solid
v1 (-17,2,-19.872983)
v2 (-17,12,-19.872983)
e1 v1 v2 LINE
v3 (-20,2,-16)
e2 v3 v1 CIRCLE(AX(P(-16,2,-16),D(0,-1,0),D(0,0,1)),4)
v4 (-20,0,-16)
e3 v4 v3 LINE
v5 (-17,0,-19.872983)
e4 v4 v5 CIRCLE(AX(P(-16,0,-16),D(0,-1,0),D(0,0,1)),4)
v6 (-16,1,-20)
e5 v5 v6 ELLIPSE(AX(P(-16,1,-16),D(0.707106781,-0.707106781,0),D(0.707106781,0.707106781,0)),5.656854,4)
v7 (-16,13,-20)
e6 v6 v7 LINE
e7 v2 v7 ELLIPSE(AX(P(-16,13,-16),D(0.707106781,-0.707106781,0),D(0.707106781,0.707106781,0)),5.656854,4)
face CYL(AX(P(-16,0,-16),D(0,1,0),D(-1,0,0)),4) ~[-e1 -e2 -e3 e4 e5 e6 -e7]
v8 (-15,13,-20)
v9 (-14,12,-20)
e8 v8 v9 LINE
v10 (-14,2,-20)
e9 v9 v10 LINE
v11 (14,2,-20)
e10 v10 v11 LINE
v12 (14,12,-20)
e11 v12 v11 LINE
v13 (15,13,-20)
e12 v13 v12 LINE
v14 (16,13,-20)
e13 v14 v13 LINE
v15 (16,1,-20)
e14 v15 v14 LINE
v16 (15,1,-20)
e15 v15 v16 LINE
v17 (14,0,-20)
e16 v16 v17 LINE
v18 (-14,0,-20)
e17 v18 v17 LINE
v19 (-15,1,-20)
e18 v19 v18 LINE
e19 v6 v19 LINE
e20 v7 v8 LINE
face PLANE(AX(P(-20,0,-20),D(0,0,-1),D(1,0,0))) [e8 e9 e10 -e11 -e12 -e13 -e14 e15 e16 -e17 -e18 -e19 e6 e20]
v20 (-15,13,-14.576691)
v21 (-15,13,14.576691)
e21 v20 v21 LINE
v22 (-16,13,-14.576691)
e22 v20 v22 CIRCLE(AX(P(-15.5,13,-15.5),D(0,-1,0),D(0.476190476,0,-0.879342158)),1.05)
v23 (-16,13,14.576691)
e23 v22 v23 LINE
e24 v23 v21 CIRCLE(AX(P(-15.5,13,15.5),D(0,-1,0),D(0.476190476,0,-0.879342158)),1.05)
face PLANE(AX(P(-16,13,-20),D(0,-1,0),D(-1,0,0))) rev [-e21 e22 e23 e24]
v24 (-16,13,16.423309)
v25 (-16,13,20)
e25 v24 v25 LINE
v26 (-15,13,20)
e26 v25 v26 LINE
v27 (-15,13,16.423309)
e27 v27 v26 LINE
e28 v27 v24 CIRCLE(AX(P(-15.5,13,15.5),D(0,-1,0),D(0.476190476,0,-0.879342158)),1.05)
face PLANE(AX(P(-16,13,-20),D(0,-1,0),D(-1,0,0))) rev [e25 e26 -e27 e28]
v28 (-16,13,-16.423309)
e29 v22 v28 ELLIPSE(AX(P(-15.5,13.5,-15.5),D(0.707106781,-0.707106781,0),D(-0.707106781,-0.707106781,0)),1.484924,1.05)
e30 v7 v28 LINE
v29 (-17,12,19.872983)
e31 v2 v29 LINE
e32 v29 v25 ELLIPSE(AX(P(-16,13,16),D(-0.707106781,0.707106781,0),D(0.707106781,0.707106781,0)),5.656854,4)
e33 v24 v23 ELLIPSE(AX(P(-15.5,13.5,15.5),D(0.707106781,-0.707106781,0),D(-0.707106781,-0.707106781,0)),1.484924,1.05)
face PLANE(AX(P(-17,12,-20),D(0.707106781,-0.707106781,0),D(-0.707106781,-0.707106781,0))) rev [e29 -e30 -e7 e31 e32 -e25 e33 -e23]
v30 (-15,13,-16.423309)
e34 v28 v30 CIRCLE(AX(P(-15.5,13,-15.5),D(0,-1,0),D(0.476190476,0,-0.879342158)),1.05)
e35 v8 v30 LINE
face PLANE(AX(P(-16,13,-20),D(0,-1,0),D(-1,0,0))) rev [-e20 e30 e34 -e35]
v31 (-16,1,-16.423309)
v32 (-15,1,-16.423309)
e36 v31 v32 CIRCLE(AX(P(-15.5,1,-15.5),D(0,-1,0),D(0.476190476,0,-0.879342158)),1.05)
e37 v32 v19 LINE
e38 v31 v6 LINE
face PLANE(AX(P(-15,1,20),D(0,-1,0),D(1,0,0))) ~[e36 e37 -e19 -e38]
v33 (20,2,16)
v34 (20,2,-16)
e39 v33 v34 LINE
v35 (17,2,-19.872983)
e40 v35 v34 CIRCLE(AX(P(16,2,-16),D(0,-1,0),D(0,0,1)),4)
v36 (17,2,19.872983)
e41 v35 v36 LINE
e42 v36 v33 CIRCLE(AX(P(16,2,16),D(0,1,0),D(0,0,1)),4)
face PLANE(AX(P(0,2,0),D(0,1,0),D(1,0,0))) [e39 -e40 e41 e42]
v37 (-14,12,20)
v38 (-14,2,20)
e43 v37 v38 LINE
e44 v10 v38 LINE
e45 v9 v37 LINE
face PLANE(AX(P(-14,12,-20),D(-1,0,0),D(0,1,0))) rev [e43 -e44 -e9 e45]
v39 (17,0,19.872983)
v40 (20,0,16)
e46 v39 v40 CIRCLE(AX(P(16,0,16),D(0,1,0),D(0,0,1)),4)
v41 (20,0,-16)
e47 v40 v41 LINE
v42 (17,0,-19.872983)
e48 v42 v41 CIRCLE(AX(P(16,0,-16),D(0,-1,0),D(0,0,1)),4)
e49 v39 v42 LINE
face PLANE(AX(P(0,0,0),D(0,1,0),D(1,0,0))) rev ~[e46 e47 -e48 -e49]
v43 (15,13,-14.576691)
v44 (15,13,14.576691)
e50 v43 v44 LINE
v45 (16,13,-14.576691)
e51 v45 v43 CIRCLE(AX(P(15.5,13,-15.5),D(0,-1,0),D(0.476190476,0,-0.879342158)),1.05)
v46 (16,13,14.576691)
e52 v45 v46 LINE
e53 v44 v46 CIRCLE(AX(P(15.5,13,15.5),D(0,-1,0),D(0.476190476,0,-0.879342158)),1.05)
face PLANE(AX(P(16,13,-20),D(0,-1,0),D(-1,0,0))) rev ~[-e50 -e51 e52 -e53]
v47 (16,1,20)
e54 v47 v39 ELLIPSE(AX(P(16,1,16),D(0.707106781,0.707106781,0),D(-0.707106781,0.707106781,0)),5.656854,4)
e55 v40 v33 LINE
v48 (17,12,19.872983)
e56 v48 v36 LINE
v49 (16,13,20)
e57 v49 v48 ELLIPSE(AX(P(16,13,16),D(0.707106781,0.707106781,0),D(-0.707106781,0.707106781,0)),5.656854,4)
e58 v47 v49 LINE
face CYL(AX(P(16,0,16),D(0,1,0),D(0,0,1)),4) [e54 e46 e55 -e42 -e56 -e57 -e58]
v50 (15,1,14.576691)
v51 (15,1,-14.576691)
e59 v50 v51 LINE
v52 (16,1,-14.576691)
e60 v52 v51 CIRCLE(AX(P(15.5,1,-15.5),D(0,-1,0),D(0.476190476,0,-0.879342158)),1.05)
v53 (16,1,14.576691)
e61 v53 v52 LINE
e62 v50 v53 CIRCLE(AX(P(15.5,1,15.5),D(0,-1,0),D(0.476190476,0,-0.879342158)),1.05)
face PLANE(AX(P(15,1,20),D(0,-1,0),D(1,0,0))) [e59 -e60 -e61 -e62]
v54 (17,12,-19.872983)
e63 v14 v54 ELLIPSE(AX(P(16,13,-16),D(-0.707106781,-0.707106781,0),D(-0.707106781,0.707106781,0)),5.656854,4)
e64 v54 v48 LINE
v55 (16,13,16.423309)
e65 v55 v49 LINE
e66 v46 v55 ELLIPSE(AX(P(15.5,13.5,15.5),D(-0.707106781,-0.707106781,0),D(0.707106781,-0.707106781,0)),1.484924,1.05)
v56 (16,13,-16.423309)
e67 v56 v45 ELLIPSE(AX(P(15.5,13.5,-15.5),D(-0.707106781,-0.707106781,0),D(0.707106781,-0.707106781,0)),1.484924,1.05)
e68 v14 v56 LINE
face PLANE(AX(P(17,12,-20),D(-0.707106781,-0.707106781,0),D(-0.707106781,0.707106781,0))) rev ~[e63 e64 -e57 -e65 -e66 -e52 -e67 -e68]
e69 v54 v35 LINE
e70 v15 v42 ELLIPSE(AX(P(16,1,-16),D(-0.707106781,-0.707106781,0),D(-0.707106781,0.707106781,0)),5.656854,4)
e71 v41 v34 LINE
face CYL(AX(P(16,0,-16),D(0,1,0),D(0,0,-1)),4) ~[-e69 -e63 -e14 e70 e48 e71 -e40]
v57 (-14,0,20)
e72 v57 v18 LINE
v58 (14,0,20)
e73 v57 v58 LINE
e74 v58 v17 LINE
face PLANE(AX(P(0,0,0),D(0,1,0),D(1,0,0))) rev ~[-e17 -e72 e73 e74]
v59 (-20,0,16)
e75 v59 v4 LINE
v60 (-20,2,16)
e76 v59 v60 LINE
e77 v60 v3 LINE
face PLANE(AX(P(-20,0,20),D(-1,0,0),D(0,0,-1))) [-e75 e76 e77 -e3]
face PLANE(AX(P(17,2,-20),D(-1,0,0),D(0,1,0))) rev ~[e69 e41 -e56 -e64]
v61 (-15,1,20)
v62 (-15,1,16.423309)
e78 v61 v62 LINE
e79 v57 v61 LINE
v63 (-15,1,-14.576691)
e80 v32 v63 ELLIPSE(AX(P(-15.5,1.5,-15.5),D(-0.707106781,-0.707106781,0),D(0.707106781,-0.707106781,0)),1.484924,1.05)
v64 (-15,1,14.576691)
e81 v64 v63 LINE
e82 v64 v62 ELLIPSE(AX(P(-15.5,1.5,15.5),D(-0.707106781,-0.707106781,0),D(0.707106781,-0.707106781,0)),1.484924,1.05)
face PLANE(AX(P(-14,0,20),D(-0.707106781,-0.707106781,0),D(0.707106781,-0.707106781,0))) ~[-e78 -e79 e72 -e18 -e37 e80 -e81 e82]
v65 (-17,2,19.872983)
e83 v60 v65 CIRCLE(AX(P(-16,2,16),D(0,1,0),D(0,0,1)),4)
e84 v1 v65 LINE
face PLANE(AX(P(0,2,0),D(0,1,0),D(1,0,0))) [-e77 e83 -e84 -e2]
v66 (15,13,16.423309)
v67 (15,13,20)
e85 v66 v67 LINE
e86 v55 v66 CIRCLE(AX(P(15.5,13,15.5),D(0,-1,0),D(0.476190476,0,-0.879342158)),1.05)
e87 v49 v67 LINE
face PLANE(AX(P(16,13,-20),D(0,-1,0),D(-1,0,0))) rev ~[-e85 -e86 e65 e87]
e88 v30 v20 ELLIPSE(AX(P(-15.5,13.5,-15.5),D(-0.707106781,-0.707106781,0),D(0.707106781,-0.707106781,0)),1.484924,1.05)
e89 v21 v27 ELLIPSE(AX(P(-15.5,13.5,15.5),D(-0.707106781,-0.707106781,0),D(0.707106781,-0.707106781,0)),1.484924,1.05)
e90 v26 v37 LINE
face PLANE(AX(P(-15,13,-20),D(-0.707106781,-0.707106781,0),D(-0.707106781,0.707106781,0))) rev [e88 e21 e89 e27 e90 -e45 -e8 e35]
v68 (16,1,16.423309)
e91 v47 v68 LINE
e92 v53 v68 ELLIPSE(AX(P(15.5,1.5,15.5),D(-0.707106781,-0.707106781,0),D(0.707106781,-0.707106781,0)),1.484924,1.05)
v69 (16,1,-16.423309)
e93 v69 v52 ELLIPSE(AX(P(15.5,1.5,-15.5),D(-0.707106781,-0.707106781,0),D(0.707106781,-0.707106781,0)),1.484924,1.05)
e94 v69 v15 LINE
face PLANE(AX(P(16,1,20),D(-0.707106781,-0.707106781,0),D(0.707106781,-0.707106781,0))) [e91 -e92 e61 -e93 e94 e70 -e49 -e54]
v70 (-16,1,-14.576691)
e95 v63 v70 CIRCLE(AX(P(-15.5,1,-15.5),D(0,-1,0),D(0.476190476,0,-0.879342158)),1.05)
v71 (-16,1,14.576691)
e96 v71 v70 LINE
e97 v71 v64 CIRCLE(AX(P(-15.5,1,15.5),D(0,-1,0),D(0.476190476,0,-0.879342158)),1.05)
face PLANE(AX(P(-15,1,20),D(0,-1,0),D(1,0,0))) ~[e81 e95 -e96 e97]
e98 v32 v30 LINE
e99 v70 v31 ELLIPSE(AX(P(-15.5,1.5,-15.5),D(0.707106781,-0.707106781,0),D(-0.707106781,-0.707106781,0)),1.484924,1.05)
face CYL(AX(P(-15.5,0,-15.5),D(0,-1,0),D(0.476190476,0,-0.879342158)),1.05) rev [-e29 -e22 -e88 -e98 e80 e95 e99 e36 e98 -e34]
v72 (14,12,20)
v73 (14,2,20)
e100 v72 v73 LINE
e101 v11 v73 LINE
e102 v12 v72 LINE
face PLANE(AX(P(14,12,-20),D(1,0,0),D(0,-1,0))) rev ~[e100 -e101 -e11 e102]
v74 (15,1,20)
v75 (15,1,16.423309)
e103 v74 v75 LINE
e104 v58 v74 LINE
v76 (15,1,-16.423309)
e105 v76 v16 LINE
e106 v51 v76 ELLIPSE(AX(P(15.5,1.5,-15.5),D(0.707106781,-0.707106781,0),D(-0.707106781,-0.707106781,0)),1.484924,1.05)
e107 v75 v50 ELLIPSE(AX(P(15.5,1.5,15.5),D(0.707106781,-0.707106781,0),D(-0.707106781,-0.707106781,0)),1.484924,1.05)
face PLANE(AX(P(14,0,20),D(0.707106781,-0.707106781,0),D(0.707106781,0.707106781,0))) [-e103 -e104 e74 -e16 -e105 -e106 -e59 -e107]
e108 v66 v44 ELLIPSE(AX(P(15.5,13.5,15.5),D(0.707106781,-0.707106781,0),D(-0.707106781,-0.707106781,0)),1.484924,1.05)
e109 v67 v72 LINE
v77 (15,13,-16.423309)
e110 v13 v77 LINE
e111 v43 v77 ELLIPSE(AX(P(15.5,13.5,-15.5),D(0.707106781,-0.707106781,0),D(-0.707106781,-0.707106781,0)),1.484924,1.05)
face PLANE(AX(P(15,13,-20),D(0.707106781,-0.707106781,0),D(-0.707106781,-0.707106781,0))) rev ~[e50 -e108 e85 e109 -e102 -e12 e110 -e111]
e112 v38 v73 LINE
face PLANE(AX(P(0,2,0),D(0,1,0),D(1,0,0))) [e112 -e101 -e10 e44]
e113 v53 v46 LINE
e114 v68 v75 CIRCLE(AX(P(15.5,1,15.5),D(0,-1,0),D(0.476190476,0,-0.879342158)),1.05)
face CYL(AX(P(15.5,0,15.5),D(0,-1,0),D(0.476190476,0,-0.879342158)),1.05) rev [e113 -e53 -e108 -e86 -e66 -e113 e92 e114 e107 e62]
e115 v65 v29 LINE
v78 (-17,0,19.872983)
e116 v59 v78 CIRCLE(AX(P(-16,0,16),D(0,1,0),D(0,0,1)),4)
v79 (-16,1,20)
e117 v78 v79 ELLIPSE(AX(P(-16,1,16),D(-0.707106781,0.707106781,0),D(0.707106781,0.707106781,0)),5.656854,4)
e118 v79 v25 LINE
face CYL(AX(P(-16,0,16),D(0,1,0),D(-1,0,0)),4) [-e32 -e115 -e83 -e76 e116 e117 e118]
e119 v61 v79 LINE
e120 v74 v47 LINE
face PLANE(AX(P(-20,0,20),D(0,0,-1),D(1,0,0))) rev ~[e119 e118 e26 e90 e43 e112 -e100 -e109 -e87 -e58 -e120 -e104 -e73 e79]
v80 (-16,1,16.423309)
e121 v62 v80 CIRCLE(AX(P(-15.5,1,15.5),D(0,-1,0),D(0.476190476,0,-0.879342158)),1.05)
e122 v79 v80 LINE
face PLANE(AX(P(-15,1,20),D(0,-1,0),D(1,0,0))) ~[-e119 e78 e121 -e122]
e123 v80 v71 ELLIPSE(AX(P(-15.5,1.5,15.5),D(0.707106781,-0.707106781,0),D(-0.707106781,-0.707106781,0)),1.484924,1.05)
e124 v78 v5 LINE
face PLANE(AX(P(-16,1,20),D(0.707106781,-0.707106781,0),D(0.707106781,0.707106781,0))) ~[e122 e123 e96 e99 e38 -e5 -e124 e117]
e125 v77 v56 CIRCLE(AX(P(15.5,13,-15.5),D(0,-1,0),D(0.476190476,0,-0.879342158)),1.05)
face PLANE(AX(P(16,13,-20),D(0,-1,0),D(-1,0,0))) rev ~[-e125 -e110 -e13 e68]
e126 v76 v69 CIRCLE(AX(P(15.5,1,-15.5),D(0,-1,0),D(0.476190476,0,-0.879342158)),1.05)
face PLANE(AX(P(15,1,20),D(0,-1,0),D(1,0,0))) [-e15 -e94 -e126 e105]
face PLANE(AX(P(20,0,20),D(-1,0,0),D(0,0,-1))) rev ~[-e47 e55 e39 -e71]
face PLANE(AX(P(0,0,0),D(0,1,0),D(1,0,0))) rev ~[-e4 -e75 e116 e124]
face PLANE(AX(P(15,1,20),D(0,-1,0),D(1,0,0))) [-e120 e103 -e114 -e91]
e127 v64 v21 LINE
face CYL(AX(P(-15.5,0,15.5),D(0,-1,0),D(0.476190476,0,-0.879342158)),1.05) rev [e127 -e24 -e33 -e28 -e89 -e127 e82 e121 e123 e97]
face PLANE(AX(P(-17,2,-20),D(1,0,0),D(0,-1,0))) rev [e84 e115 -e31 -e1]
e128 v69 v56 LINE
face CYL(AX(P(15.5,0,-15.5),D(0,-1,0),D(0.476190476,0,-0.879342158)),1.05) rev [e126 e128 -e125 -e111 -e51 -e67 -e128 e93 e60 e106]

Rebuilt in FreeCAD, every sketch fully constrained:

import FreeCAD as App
import Part
import Sketcher

V = App.Vector


def edges_at(feature, points):
    """Names of the edges that pass closest to the given points."""
    edges = feature.Shape.Edges
    near = lambda p: min(range(len(edges)), key=lambda i: edges[i].distToShape(Part.Vertex(*p))[0])
    return sorted({f"Edge{near(p) + 1}" for p in points})


def add_polygon(sketch, points):
    """Adds a closed chain of lines whose ends are joined by coincident constraints."""
    first, n = sketch.GeometryCount, len(points)
    for a, b in zip(points, points[1:] + points[:1]):
        sketch.addGeometry(Part.LineSegment(App.Vector(*a, 0), App.Vector(*b, 0)), False)
    for i in range(n):
        sketch.addConstraint(Sketcher.Constraint("Coincident", first + i, 2, first + (i + 1) % n, 1))

doc = App.newDocument("Part")
body = doc.addObject("PartDesign::Body", "Body")

sketch1 = doc.addObject("Sketcher::SketchObject", "Sketch")
body.addObject(sketch1)
sketch1.AttachmentSupport = (doc.XZ_Plane, [""])
sketch1.MapMode = "FlatFace"
add_polygon(sketch1, [(-20, -20), (-20, 20), (20, 20), (20, -20)])
sketch1.addConstraint([
    Sketcher.Constraint("Vertical", 0),
    Sketcher.Constraint("Horizontal", 1),
    Sketcher.Constraint("Vertical", 2),
    Sketcher.Constraint("Horizontal", 3),
    Sketcher.Constraint("Symmetric", 0, 2, 2, 2, -1, 1),
    Sketcher.Constraint("Equal", 3, 0),
    Sketcher.Constraint("DistanceX", 1, 1, 1, 2, 40.0),
])
pad1 = doc.addObject("PartDesign::Pad", "Pad")
body.addObject(pad1)
pad1.Profile = sketch1
pad1.Length = 2
pad1.Reversed = True

sketch2 = doc.addObject("Sketcher::SketchObject", "Sketch001")
body.addObject(sketch2)
sketch2.AttachmentSupport = (doc.XY_Plane, [""])
sketch2.MapMode = "FlatFace"
sketch2.AttachmentOffset = App.Placement(V(0, 0, 20), App.Rotation())
add_polygon(sketch2, [(15, 1), (14, 0), (17, 0), (16, 1)])
sketch2.addConstraint([
    Sketcher.Constraint("Horizontal", 1),
    Sketcher.Constraint("Horizontal", 3),
    Sketcher.Constraint("PointOnObject", 0, 2, -1),
    Sketcher.Constraint("Perpendicular", 0, 2),
    Sketcher.Constraint("Equal", 0, 2),
    Sketcher.Constraint("DistanceX", 1, 1, 1, 2, 3.0),
    Sketcher.Constraint("DistanceX", 3, 2, 3, 1, 1.0),
    Sketcher.Constraint("DistanceX", -1, 1, 0, 2, 14.0),
])
pocket1 = doc.addObject("PartDesign::Pocket", "Pocket")
body.addObject(pocket1)
pocket1.Profile = sketch2
pocket1.Type = "ThroughAll"

sketch3 = doc.addObject("Sketcher::SketchObject", "Sketch002")
body.addObject(sketch3)
sketch3.AttachmentSupport = (doc.XY_Plane, [""])
sketch3.MapMode = "FlatFace"
sketch3.AttachmentOffset = App.Placement(V(0, 0, -20), App.Rotation())
add_polygon(sketch3, [(17, 12), (16, 13), (15, 13), (14, 12), (14, 2), (17, 2)])
sketch3.addConstraint([
    Sketcher.Constraint("Horizontal", 1),
    Sketcher.Constraint("Vertical", 3),
    Sketcher.Constraint("Horizontal", 4),
    Sketcher.Constraint("Vertical", 5),
    Sketcher.Constraint("Perpendicular", 0, 2),
    Sketcher.Constraint("Horizontal", 2, 2, 5, 2),
    Sketcher.Constraint("Equal", 0, 2),
    Sketcher.Constraint("DistanceX", 1, 2, 1, 1, 1.0),
    Sketcher.Constraint("DistanceX", 4, 1, 4, 2, 3.0),
    Sketcher.Constraint("DistanceY", 3, 2, 3, 1, 10.0),
    Sketcher.Constraint("DistanceX", -1, 1, 0, 2, 16.0),
    Sketcher.Constraint("DistanceY", -1, 1, 0, 2, 13.0),
])
pad2 = doc.addObject("PartDesign::Pad", "Pad001")
body.addObject(pad2)
pad2.Profile = sketch3
pad2.Length = 40
doc.recompute()

mirrored = doc.addObject("PartDesign::Mirrored", "Mirrored")
body.addObject(mirrored)
mirrored.Originals = [pocket1, pad2]
mirrored.MirrorPlane = (doc.YZ_Plane, [""])
body.Tip = mirrored
doc.recompute()

fillet = doc.addObject("PartDesign::Fillet", "Fillet")
body.addObject(fillet)
fillet.Base = (mirrored, edges_at(mirrored, [
    (-20, 1, 20),
    (20, 1, 20),
    (20, 1, -20),
    (-20, 1, -20),
]))
fillet.Radius = 4

sketch4 = doc.addObject("Sketcher::SketchObject", "Sketch003")
body.addObject(sketch4)
sketch4.AttachmentSupport = (doc.XZ_Plane, [""])
sketch4.MapMode = "FlatFace"
sketch4.addGeometry([
    Part.Circle(V(-15.5, -15.5, 0), V(0, 0, 1), 1.1),
    Part.Circle(V(15.5, -15.5, 0), V(0, 0, 1), 1.1),
    Part.Circle(V(-15.5, 15.5, 0), V(0, 0, 1), 1.1),
    Part.Circle(V(15.5, 15.5, 0), V(0, 0, 1), 1.1),
], False)
sketch4.addConstraint([
    Sketcher.Constraint("Equal", 0, 1),
    Sketcher.Constraint("Equal", 1, 2),
    Sketcher.Constraint("Equal", 2, 3),
    Sketcher.Constraint("Symmetric", 1, 3, 2, 3, -1, 1),
    Sketcher.Constraint("Symmetric", 0, 3, 3, 3, -1, 1),
    Sketcher.Constraint("Symmetric", 0, 3, 1, 3, -2),
    Sketcher.Constraint("Diameter", 0, 2.1),
    Sketcher.Constraint("DistanceX", 0, 3, 1, 3, 31.0),
    Sketcher.Constraint("DistanceY", 0, 3, 2, 3, 31.0),
])
pocket2 = doc.addObject("PartDesign::Pocket", "Pocket001")
body.addObject(pocket2)
pocket2.Profile = sketch4
pocket2.Type = "ThroughAll"

doc.recompute()
